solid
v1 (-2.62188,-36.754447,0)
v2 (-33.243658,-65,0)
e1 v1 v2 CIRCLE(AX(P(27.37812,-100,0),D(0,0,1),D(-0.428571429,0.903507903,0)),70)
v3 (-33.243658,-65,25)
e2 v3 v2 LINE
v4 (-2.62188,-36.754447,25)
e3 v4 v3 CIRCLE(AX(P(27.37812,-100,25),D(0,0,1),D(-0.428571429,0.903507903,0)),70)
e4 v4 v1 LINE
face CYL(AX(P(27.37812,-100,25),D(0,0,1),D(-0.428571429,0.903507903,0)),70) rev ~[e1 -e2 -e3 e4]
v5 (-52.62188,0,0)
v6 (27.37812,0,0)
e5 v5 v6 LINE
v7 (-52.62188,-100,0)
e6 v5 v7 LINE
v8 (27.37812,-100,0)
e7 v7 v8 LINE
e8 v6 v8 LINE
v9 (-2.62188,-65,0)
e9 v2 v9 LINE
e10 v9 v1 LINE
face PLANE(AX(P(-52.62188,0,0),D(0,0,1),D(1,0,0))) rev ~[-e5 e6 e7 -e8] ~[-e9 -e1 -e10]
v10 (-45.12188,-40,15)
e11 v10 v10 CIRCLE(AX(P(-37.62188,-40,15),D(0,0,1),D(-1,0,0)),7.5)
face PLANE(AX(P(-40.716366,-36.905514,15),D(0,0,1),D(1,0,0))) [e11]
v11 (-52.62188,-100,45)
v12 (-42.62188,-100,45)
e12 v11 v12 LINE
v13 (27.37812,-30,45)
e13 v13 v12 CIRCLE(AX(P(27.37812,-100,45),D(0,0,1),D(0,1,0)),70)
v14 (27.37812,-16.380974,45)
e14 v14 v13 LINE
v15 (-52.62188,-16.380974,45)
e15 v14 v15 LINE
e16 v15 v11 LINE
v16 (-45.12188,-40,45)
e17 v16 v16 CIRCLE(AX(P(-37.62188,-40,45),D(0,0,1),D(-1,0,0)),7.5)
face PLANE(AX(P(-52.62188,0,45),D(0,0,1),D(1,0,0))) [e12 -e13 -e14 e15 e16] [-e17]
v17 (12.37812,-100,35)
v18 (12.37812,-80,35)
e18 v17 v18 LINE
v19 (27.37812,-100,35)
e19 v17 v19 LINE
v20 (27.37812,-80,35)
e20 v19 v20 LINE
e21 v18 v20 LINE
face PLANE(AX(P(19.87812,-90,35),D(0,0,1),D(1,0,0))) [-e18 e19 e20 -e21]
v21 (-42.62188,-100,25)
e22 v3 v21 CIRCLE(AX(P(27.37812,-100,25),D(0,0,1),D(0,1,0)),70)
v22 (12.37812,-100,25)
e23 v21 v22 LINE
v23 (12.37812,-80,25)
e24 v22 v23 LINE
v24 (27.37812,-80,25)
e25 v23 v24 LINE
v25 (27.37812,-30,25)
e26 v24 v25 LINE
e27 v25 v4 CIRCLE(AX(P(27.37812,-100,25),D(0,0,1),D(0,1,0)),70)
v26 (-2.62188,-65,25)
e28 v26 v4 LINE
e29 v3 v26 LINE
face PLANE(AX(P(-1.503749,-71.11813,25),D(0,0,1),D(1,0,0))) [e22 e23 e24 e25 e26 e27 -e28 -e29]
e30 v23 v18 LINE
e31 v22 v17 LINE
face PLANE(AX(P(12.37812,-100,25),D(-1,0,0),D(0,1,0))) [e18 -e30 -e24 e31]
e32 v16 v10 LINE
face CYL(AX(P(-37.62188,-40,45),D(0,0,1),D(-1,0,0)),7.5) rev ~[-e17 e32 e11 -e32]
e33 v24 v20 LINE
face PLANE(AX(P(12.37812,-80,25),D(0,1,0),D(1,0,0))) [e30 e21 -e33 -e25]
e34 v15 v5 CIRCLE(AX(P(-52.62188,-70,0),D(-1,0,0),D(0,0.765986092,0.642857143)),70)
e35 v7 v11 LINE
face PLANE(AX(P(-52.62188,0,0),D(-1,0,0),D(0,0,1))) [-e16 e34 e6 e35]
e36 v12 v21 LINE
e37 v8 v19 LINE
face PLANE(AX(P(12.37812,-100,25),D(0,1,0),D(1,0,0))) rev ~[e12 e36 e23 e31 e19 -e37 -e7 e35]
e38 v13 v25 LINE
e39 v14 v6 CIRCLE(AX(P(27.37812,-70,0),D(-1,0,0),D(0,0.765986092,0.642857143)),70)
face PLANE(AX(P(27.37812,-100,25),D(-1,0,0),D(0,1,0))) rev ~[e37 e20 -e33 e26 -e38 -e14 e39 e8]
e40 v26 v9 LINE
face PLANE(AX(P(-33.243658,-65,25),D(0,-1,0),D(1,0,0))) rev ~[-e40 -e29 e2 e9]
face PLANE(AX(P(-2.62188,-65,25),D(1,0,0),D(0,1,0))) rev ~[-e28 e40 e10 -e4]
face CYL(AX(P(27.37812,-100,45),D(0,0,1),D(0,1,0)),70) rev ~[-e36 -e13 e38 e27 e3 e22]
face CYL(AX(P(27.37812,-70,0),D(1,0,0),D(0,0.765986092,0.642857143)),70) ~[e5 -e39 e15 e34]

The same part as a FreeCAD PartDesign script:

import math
import FreeCAD as App
import Part
import Sketcher

V = App.Vector

doc = App.newDocument("Part")
body = doc.addObject("PartDesign::Body", "Body")

# Sketch on XZ plane
sketch1 = doc.addObject("Sketcher::SketchObject", "Sketch")
body.addObject(sketch1)
sketch1.AttachmentSupport = (doc.XZ_Plane, [""])
sketch1.MapMode = "FlatFace"
sketch1.addGeometry([
    Part.LineSegment(V(-53, 45, 0), V(-53, 0, 0)),
    Part.LineSegment(V(-53, 0, 0), V(27, 0, 0)),
    Part.LineSegment(V(27, 0, 0), V(27, 45, 0)),
    Part.LineSegment(V(27, 45, 0), V(-53, 45, 0)),
], False)
sketch1.addConstraint([
    Sketcher.Constraint("Coincident", 0, 2, 1, 1),
    Sketcher.Constraint("Coincident", 1, 2, 2, 1),
    Sketcher.Constraint("Coincident", 2, 2, 3, 1),
    Sketcher.Constraint("Coincident", 3, 2, 0, 1),
    Sketcher.Constraint("Vertical", 0),
    Sketcher.Constraint("Horizontal", 1),
    Sketcher.Constraint("Vertical", 2),
    Sketcher.Constraint("Horizontal", 3),
    Sketcher.Constraint("PointOnObject", 0, 2, -1),
    Sketcher.Constraint("DistanceX", 1, 1, 1, 2, 80.0),
    Sketcher.Constraint("DistanceY", 0, 2, 0, 1, 45.0),
    Sketcher.Constraint("DistanceX", 0, 2, -1, 1, 52.62188),
])
pad1 = doc.addObject("PartDesign::Pad", "Pad")
body.addObject(pad1)
pad1.Profile = sketch1
pad1.Length = 100

# Sketch on YZ plane
sketch2 = doc.addObject("Sketcher::SketchObject", "Sketch001")
body.addObject(sketch2)
sketch2.AttachmentSupport = (doc.YZ_Plane, [""])
sketch2.MapMode = "FlatFace"
sketch2.AttachmentOffset = App.Placement(V(0, 0, 27.37812), App.Rotation())
sketch2.addGeometry([
    Part.ArcOfCircle(Part.Circle(V(-70, 0, 0), V(0, 0, 1), 70), math.radians(0), math.radians(40)),
    Part.LineSegment(V(0, 0, 0), V(0, 45, 0)),
    Part.LineSegment(V(0, 45, 0), V(-16, 45, 0)),
], False)
sketch2.addConstraint([
    Sketcher.Constraint("Tangent", 0, 1, 1, 1),
    Sketcher.Constraint("Coincident", 1, 2, 2, 1),
    Sketcher.Constraint("Coincident", 2, 2, 0, 2),
    Sketcher.Constraint("Vertical", 1),
    Sketcher.Constraint("Horizontal", 2),
    Sketcher.Constraint("Coincident", 0, 1, -1, 1),
    Sketcher.Constraint("Radius", 0, 70.0),
    Sketcher.Constraint("DistanceY", 1, 1, 1, 2, 45.0),
])
pocket1 = doc.addObject("PartDesign::Pocket", "Pocket")
body.addObject(pocket1)
pocket1.Profile = sketch2
pocket1.Length = 80

# Sketch on XY plane
sketch3 = doc.addObject("Sketcher::SketchObject", "Sketch002")
body.addObject(sketch3)
sketch3.AttachmentSupport = (doc.XY_Plane, [""])
sketch3.MapMode = "FlatFace"
sketch3.AttachmentOffset = App.Placement(V(0, 0, 45), App.Rotation())
sketch3.addGeometry([
    Part.LineSegment(V(-43, -100, 0), V(27, -100, 0)),
    Part.LineSegment(V(27, -100, 0), V(27, -30, 0)),
    Part.ArcOfCircle(Part.Circle(V(27, -100, 0), V(0, 0, 1), 70), math.radians(90), math.radians(180)),
], False)
sketch3.addConstraint([
    Sketcher.Constraint("Coincident", 0, 2, 1, 1),
    Sketcher.Constraint("Coincident", 1, 2, 2, 1),
    Sketcher.Constraint("Coincident", 2, 2, 0, 1),
    Sketcher.Constraint("Horizontal", 0),
    Sketcher.Constraint("Vertical", 1),
    Sketcher.Constraint("Coincident", 0, 2, 2, 3),
    Sketcher.Constraint("Radius", 2, 70.0),
    Sketcher.Constraint("DistanceY", 2, 3, -1, 1, 100.0),
    Sketcher.Constraint("DistanceX", -1, 1, 2, 3, 27.37812),
])
pocket2 = doc.addObject("PartDesign::Pocket", "Pocket001")
body.addObject(pocket2)
pocket2.Profile = sketch3
pocket2.Length = 20

# Sketch on XY plane
sketch4 = doc.addObject("Sketcher::SketchObject", "Sketch003")
body.addObject(sketch4)
sketch4.AttachmentSupport = (doc.XY_Plane, [""])
sketch4.MapMode = "FlatFace"
sketch4.AttachmentOffset = App.Placement(V(0, 0, 25), App.Rotation())
sketch4.addGeometry([
    Part.LineSegment(V(12, -80, 0), V(12, -100, 0)),
    Part.LineSegment(V(12, -100, 0), V(27, -100, 0)),
    Part.LineSegment(V(27, -100, 0), V(27, -80, 0)),
    Part.LineSegment(V(27, -80, 0), V(12, -80, 0)),
], False)
sketch4.addConstraint([
    Sketcher.Constraint("Coincident", 0, 2, 1, 1),
    Sketcher.Constraint("Coincident", 1, 2, 2, 1),
    Sketcher.Constraint("Coincident", 2, 2, 3, 1),
    Sketcher.Constraint("Coincident", 3, 2, 0, 1),
    Sketcher.Constraint("Vertical", 0),
    Sketcher.Constraint("Horizontal", 1),
    Sketcher.Constraint("Vertical", 2),
    Sketcher.Constraint("Horizontal", 3),
    Sketcher.Constraint("DistanceX", 1, 1, 1, 2, 15.0),
    Sketcher.Constraint("DistanceY", 0, 2, 0, 1, 20.0),
    Sketcher.Constraint("DistanceY", 0, 2, -1, 1, 100.0),
    Sketcher.Constraint("DistanceX", -1, 1, 0, 2, 12.37812),
])
pad2 = doc.addObject("PartDesign::Pad", "Pad001")
body.addObject(pad2)
pad2.Profile = sketch4
pad2.Length = 10

# Sketch on XY plane
sketch5 = doc.addObject("Sketcher::SketchObject", "Sketch004")
body.addObject(sketch5)
sketch5.AttachmentSupport = (doc.XY_Plane, [""])
sketch5.MapMode = "FlatFace"
sketch5.AttachmentOffset = App.Placement(V(0, 0, 25), App.Rotation())
sketch5.addGeometry([
    Part.LineSegment(V(-33, -65, 0), V(-3, -65, 0)),
    Part.LineSegment(V(-3, -65, 0), V(-3, -37, 0)),
    Part.ArcOfCircle(Part.Circle(V(27, -100, 0), V(0, 0, 1), 70), math.radians(115), math.radians(150)),
], False)
sketch5.addConstraint([
    Sketcher.Constraint("Coincident", 0, 2, 1, 1),
    Sketcher.Constraint("Coincident", 1, 2, 2, 1),
    Sketcher.Constraint("Coincident", 2, 2, 0, 1),
    Sketcher.Constraint("Horizontal", 0),
    Sketcher.Constraint("Vertical", 1),
    Sketcher.Constraint("Radius", 2, 70.0),
    Sketcher.Constraint("DistanceY", 2, 3, -1, 1, 100.0),
    Sketcher.Constraint("DistanceY", 0, 2, -1, 1, 65.0),
    Sketcher.Constraint("DistanceX", 0, 2, 2, 3, 30.0),
    Sketcher.Constraint("DistanceX", -1, 1, 2, 3, 27.37812),
])
pocket3 = doc.addObject("PartDesign::Pocket", "Pocket002")
body.addObject(pocket3)
pocket3.Profile = sketch5
pocket3.Length = 25

# Sketch on XY plane
sketch6 = doc.addObject("Sketcher::SketchObject", "Sketch005")
body.addObject(sketch6)
sketch6.AttachmentSupport = (doc.XY_Plane, [""])
sketch6.MapMode = "FlatFace"
sketch6.AttachmentOffset = App.Placement(V(0, 0, 45), App.Rotation())
sketch6.addGeometry(Part.Circle(V(-38, -40, 0), V(0, 0, 1), 8), False)
sketch6.addConstraint([
    Sketcher.Constraint("Diameter", 0, 15.0),
    Sketcher.Constraint("DistanceY", 0, 3, -1, 1, 40.0),
    Sketcher.Constraint("DistanceX", 0, 3, -1, 1, 37.62188),
])
pocket4 = doc.addObject("PartDesign::Pocket", "Pocket003")
body.addObject(pocket4)
pocket4.Profile = sketch6
pocket4.Length = 30

doc.recompute()
